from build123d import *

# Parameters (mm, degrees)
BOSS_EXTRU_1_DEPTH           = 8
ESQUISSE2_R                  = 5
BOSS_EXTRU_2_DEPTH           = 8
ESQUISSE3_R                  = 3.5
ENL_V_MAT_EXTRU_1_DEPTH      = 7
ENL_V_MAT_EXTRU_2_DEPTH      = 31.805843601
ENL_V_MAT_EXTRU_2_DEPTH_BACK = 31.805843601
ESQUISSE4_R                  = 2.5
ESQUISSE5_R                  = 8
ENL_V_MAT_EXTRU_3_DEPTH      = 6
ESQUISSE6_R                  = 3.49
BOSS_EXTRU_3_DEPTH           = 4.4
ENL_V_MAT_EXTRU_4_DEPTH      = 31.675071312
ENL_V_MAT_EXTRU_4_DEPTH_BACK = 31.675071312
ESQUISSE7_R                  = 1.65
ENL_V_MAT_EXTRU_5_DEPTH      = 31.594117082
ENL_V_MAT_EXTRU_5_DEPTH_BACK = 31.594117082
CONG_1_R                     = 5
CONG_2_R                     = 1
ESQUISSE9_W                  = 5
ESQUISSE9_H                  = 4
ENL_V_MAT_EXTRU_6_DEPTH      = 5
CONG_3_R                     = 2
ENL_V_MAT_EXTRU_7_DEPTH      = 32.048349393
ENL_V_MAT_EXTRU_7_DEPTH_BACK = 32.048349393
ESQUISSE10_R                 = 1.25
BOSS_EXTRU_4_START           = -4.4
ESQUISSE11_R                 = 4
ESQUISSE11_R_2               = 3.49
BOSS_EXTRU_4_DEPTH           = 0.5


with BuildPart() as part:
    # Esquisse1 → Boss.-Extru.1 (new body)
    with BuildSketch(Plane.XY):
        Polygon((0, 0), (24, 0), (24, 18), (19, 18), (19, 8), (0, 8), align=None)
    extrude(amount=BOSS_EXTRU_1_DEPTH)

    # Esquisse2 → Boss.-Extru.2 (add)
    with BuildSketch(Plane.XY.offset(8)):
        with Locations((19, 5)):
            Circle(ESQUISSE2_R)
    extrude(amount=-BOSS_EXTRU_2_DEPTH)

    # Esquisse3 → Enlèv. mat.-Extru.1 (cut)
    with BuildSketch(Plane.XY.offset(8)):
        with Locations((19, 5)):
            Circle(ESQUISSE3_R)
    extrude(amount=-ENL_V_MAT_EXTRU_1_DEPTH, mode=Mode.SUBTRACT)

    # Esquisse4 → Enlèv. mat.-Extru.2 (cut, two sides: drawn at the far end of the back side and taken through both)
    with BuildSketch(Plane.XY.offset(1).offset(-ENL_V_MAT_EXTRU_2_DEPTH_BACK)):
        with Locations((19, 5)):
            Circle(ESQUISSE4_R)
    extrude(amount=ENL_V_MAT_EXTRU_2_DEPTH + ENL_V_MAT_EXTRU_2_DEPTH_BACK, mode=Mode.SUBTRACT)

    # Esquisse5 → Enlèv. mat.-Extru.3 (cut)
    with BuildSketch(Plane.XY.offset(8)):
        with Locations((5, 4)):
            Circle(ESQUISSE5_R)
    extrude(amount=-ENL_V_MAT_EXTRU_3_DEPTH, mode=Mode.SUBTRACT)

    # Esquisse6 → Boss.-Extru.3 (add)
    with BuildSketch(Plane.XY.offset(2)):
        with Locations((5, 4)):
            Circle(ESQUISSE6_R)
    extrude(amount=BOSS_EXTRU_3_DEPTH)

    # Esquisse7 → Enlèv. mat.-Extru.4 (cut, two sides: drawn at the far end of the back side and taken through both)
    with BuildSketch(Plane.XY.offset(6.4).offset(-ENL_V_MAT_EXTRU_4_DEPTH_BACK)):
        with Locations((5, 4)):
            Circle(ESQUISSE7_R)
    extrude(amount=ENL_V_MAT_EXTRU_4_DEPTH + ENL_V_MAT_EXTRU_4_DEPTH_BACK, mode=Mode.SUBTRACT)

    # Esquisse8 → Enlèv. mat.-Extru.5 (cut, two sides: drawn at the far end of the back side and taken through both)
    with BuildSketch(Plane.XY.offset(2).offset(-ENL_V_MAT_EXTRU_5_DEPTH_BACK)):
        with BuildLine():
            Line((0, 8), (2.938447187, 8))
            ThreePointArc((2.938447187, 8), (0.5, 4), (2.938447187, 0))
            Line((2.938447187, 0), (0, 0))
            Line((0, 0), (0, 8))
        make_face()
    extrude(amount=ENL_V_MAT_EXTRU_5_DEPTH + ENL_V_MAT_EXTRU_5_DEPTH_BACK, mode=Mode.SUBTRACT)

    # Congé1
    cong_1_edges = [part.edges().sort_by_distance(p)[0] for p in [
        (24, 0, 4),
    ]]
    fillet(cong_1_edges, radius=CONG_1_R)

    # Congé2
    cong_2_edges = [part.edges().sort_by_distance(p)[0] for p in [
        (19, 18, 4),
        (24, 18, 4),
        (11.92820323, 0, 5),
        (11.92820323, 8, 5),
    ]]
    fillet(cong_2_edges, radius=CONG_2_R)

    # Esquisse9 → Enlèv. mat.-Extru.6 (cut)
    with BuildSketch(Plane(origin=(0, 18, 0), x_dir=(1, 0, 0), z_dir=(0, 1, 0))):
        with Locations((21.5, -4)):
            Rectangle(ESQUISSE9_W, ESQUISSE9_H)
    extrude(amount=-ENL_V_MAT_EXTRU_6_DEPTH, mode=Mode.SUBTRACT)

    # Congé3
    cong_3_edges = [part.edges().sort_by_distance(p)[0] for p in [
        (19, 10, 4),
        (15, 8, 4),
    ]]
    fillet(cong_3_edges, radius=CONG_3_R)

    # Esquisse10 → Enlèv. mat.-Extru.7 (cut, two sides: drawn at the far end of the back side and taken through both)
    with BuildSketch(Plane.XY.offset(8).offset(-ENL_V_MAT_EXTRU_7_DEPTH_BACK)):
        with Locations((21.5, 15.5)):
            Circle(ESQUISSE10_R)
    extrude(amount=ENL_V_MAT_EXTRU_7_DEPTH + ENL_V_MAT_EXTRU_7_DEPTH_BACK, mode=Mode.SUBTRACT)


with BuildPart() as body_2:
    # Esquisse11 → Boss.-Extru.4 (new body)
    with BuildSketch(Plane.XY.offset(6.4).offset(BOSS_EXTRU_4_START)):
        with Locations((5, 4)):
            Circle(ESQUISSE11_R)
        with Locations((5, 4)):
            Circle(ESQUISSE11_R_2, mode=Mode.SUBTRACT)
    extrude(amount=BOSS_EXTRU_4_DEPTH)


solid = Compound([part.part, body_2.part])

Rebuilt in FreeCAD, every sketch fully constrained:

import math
import FreeCAD as App
import Part
import Sketcher

V = App.Vector


def edges_at(feature, points):
    """Names of the edges that pass closest to the given points."""
    edges = feature.Shape.Edges
    near = lambda p: min(range(len(edges)), key=lambda i: edges[i].distToShape(Part.Vertex(*p))[0])
    return sorted({f"Edge{near(p) + 1}" for p in points})

doc = App.newDocument("Part")
body = doc.addObject("PartDesign::Body", "Body")

# Sketch on XY plane
sketch1 = doc.addObject("Sketcher::SketchObject", "Sketch")
body.addObject(sketch1)
sketch1.AttachmentSupport = (doc.XY_Plane, [""])
sketch1.MapMode = "FlatFace"
sketch1.addGeometry([
    Part.LineSegment(V(0, 0, 0), V(24, 0, 0)),  # 0
    Part.LineSegment(V(24, 0, 0), V(24, 18, 0)),  # 1
    Part.LineSegment(V(24, 18, 0), V(19, 18, 0)),  # 2
    Part.LineSegment(V(19, 18, 0), V(19, 8, 0)),  # 3
    Part.LineSegment(V(19, 8, 0), V(0, 8, 0)),  # 4
    Part.LineSegment(V(0, 8, 0), V(0, 0, 0)),  # 5
], False)
sketch1.addConstraint([
    Sketcher.Constraint("Coincident", 0, 2, 1, 1),
    Sketcher.Constraint("Coincident", 1, 2, 2, 1),
    Sketcher.Constraint("Coincident", 2, 2, 3, 1),
    Sketcher.Constraint("Coincident", 3, 2, 4, 1),
    Sketcher.Constraint("Coincident", 4, 2, 5, 1),
    Sketcher.Constraint("Coincident", 5, 2, 0, 1),
    Sketcher.Constraint("Horizontal", 0),
    Sketcher.Constraint("Vertical", 1),
    Sketcher.Constraint("Horizontal", 2),
    Sketcher.Constraint("Vertical", 3),
    Sketcher.Constraint("Horizontal", 4),
    Sketcher.Constraint("Vertical", 5),
    Sketcher.Constraint("Coincident", 5, 2, -1, 1),
    Sketcher.Constraint("DistanceX", 0, 1, 0, 2, 24.0),
    Sketcher.Constraint("DistanceX", 2, 2, 2, 1, 5.0),
    Sketcher.Constraint("DistanceY", 1, 1, 1, 2, 18.0),
    Sketcher.Constraint("DistanceY", 3, 2, 3, 1, 10.0),
])
pad1 = doc.addObject("PartDesign::Pad", "Pad")
body.addObject(pad1)
pad1.Profile = sketch1
pad1.Length = 8

# Sketch on XY plane
sketch2 = doc.addObject("Sketcher::SketchObject", "Sketch001")
body.addObject(sketch2)
sketch2.AttachmentSupport = (doc.XY_Plane, [""])
sketch2.MapMode = "FlatFace"
sketch2.AttachmentOffset = App.Placement(V(0, 0, 8), App.Rotation())
sketch2.addGeometry(Part.Circle(V(19, 5, 0), V(0, 0, 1), 5), False)
sketch2.addConstraint([
    Sketcher.Constraint("Diameter", 0, 10.0),
    Sketcher.Constraint("DistanceX", -1, 1, 0, 3, 19.0),
    Sketcher.Constraint("DistanceY", -1, 1, 0, 3, 5.0),
])
pad2 = doc.addObject("PartDesign::Pad", "Pad001")
body.addObject(pad2)
pad2.Profile = sketch2
pad2.Length = 8
pad2.Reversed = True

# Sketch on XY plane
sketch3 = doc.addObject("Sketcher::SketchObject", "Sketch002")
body.addObject(sketch3)
sketch3.AttachmentSupport = (doc.XY_Plane, [""])
sketch3.MapMode = "FlatFace"
sketch3.AttachmentOffset = App.Placement(V(0, 0, 8), App.Rotation())
sketch3.addGeometry(Part.Circle(V(19, 5, 0), V(0, 0, 1), 3.5), False)
sketch3.addConstraint([
    Sketcher.Constraint("Diameter", 0, 7.0),
    Sketcher.Constraint("DistanceX", -1, 1, 0, 3, 19.0),
    Sketcher.Constraint("DistanceY", -1, 1, 0, 3, 5.0),
])
pocket1 = doc.addObject("PartDesign::Pocket", "Pocket")
body.addObject(pocket1)
pocket1.Profile = sketch3
pocket1.Length = 7

# Sketch on XY plane
sketch4 = doc.addObject("Sketcher::SketchObject", "Sketch003")
body.addObject(sketch4)
sketch4.AttachmentSupport = (doc.XY_Plane, [""])
sketch4.MapMode = "FlatFace"
sketch4.AttachmentOffset = App.Placement(V(0, 0, 1), App.Rotation())
sketch4.addGeometry(Part.Circle(V(19, 5, 0), V(0, 0, 1), 2.5), False)
sketch4.addConstraint([
    Sketcher.Constraint("Diameter", 0, 5.0),
    Sketcher.Constraint("DistanceX", -1, 1, 0, 3, 19.0),
    Sketcher.Constraint("DistanceY", -1, 1, 0, 3, 5.0),
])
pocket2 = doc.addObject("PartDesign::Pocket", "Pocket001")
body.addObject(pocket2)
pocket2.Profile = sketch4
pocket2.Type = "ThroughAll"
pocket2.Midplane = True

# Sketch on XY plane
sketch5 = doc.addObject("Sketcher::SketchObject", "Sketch004")
body.addObject(sketch5)
sketch5.AttachmentSupport = (doc.XY_Plane, [""])
sketch5.MapMode = "FlatFace"
sketch5.AttachmentOffset = App.Placement(V(0, 0, 8), App.Rotation())
sketch5.addGeometry(Part.Circle(V(5, 4, 0), V(0, 0, 1), 8), False)
sketch5.addConstraint([
    Sketcher.Constraint("Diameter", 0, 16.0),
    Sketcher.Constraint("DistanceX", -1, 1, 0, 3, 5.0),
    Sketcher.Constraint("DistanceY", -1, 1, 0, 3, 4.0),
])
pocket3 = doc.addObject("PartDesign::Pocket", "Pocket002")
body.addObject(pocket3)
pocket3.Profile = sketch5
pocket3.Length = 6

# Sketch on XY plane
sketch6 = doc.addObject("Sketcher::SketchObject", "Sketch005")
body.addObject(sketch6)
sketch6.AttachmentSupport = (doc.XY_Plane, [""])
sketch6.MapMode = "FlatFace"
sketch6.AttachmentOffset = App.Placement(V(0, 0, 2), App.Rotation())
sketch6.addGeometry(Part.Circle(V(5, 4, 0), V(0, 0, 1), 3.49), False)
sketch6.addConstraint([
    Sketcher.Constraint("Diameter", 0, 6.98),
    Sketcher.Constraint("DistanceX", -1, 1, 0, 3, 5.0),
    Sketcher.Constraint("DistanceY", -1, 1, 0, 3, 4.0),
])
pad3 = doc.addObject("PartDesign::Pad", "Pad002")
body.addObject(pad3)
pad3.Profile = sketch6
pad3.Length = 4.4

# Sketch on XY plane
sketch7 = doc.addObject("Sketcher::SketchObject", "Sketch006")
body.addObject(sketch7)
sketch7.AttachmentSupport = (doc.XY_Plane, [""])
sketch7.MapMode = "FlatFace"
sketch7.AttachmentOffset = App.Placement(V(0, 0, 6.4), App.Rotation())
sketch7.addGeometry(Part.Circle(V(5, 4, 0), V(0, 0, 1), 1.65), False)
sketch7.addConstraint([
    Sketcher.Constraint("Diameter", 0, 3.3),
    Sketcher.Constraint("DistanceX", -1, 1, 0, 3, 5.0),
    Sketcher.Constraint("DistanceY", -1, 1, 0, 3, 4.0),
])
pocket4 = doc.addObject("PartDesign::Pocket", "Pocket003")
body.addObject(pocket4)
pocket4.Profile = sketch7
pocket4.Type = "ThroughAll"
pocket4.Midplane = True

# Sketch on XY plane
sketch8 = doc.addObject("Sketcher::SketchObject", "Sketch007")
body.addObject(sketch8)
sketch8.AttachmentSupport = (doc.XY_Plane, [""])
sketch8.MapMode = "FlatFace"
sketch8.AttachmentOffset = App.Placement(V(0, 0, 2), App.Rotation())
sketch8.addGeometry([
    Part.LineSegment(V(2.938447, 8, 0), V(0, 8, 0)),
    Part.LineSegment(V(0, 8, 0), V(0, 0, 0)),
    Part.LineSegment(V(0, 0, 0), V(2.938447, 0, 0)),
    Part.ArcOfCircle(Part.Circle(V(5, 4, 0), V(0, 0, 1), 4.5), math.radians(117.266044), math.radians(242.733956)),
], False)
sketch8.addConstraint([
    Sketcher.Constraint("Coincident", 0, 2, 1, 1),
    Sketcher.Constraint("Coincident", 1, 2, 2, 1),
    Sketcher.Constraint("Coincident", 2, 2, 3, 2),
    Sketcher.Constraint("Coincident", 3, 1, 0, 1),
    Sketcher.Constraint("Horizontal", 0),
    Sketcher.Constraint("Vertical", 1),
    Sketcher.Constraint("Horizontal", 2),
    Sketcher.Constraint("Coincident", 1, 2, -1, 1),
    Sketcher.Constraint("Vertical", 2, 2, 3, 1),
    Sketcher.Constraint("Radius", 3, 4.5),
    Sketcher.Constraint("DistanceY", 1, 2, 1, 1, 8.0),
    Sketcher.Constraint("DistanceX", -1, 1, 3, 3, 5.0),
])
pocket5 = doc.addObject("PartDesign::Pocket", "Pocket004")
body.addObject(pocket5)
pocket5.Profile = sketch8
pocket5.Type = "ThroughAll"
pocket5.Midplane = True
doc.recompute()

fillet = doc.addObject("PartDesign::Fillet", "Fillet")
body.addObject(fillet)
fillet.Base = (pocket5, edges_at(pocket5, [(24, 0, 4)]))
fillet.Radius = 5
doc.recompute()

fillet2 = doc.addObject("PartDesign::Fillet", "Fillet001")
body.addObject(fillet2)
fillet2.Base = (fillet, edges_at(fillet, [
    (19, 18, 4),
    (24, 18, 4),
    (11.928, 0, 5),
    (11.928, 8, 5),
]))
fillet2.Radius = 1

# Sketch on XZ plane
sketch9 = doc.addObject("Sketcher::SketchObject", "Sketch008")
body.addObject(sketch9)
sketch9.AttachmentSupport = (doc.XZ_Plane, [""])
sketch9.MapMode = "FlatFace"
sketch9.AttachmentOffset = App.Placement(V(0, 0, -18), App.Rotation())
sketch9.addGeometry([
    Part.LineSegment(V(19, 2, 0), V(19, 6, 0)),
    Part.LineSegment(V(19, 6, 0), V(24, 6, 0)),
    Part.LineSegment(V(24, 6, 0), V(24, 2, 0)),
    Part.LineSegment(V(24, 2, 0), V(19, 2, 0)),
], False)
sketch9.addConstraint([
    Sketcher.Constraint("Coincident", 0, 2, 1, 1),
    Sketcher.Constraint("Coincident", 1, 2, 2, 1),
    Sketcher.Constraint("Coincident", 2, 2, 3, 1),
    Sketcher.Constraint("Coincident", 3, 2, 0, 1),
    Sketcher.Constraint("Vertical", 0),
    Sketcher.Constraint("Horizontal", 1),
    Sketcher.Constraint("Vertical", 2),
    Sketcher.Constraint("Horizontal", 3),
    Sketcher.Constraint("DistanceX", 1, 1, 1, 2, 5.0),
    Sketcher.Constraint("DistanceY", 0, 1, 0, 2, 4.0),
    Sketcher.Constraint("DistanceX", -1, 1, 0, 2, 19.0),
    Sketcher.Constraint("DistanceY", -1, 1, 0, 2, 6.0),
])
pocket6 = doc.addObject("PartDesign::Pocket", "Pocket005")
body.addObject(pocket6)
pocket6.Profile = sketch9
pocket6.Length = 5
pocket6.Reversed = True
doc.recompute()

fillet3 = doc.addObject("PartDesign::Fillet", "Fillet002")
body.addObject(fillet3)
fillet3.Base = (pocket6, edges_at(pocket6, [(19, 10, 4), (15, 8, 4)]))
fillet3.Radius = 2

# Sketch on XY plane
sketch10 = doc.addObject("Sketcher::SketchObject", "Sketch009")
body.addObject(sketch10)
sketch10.AttachmentSupport = (doc.XY_Plane, [""])
sketch10.MapMode = "FlatFace"
sketch10.AttachmentOffset = App.Placement(V(0, 0, 8), App.Rotation())
sketch10.addGeometry(Part.Circle(V(21.5, 15.5, 0), V(0, 0, 1), 1.25), False)
sketch10.addConstraint([
    Sketcher.Constraint("Diameter", 0, 2.5),
    Sketcher.Constraint("DistanceX", -1, 1, 0, 3, 21.5),
    Sketcher.Constraint("DistanceY", -1, 1, 0, 3, 15.5),
])
pocket7 = doc.addObject("PartDesign::Pocket", "Pocket006")
body.addObject(pocket7)
pocket7.Profile = sketch10
pocket7.Type = "ThroughAll"
pocket7.Midplane = True
body2 = doc.addObject("PartDesign::Body", "Body001")

# Sketch on XY plane
sketch11 = doc.addObject("Sketcher::SketchObject", "Sketch010")
body2.addObject(sketch11)
sketch11.AttachmentSupport = (doc.getObject("XY_Plane001"), [""])
sketch11.MapMode = "FlatFace"
sketch11.AttachmentOffset = App.Placement(V(0, 0, 2), App.Rotation())
sketch11.addGeometry([
    Part.Circle(V(5, 4, 0), V(0, 0, 1), 4),
    Part.Circle(V(5, 4, 0), V(0, 0, 1), 3.49),
], False)
sketch11.addConstraint([
    Sketcher.Constraint("Coincident", 1, 3, 0, 3),
    Sketcher.Constraint("Diameter", 0, 8.0),
    Sketcher.Constraint("Diameter", 1, 6.98),
    Sketcher.Constraint("DistanceX", -1, 1, 0, 3, 5.0),
    Sketcher.Constraint("DistanceY", -1, 1, 0, 3, 4.0),
])
pad4 = doc.addObject("PartDesign::Pad", "Pad003")
body2.addObject(pad4)
pad4.Profile = sketch11
pad4.Length = 0.5

doc.recompute()
